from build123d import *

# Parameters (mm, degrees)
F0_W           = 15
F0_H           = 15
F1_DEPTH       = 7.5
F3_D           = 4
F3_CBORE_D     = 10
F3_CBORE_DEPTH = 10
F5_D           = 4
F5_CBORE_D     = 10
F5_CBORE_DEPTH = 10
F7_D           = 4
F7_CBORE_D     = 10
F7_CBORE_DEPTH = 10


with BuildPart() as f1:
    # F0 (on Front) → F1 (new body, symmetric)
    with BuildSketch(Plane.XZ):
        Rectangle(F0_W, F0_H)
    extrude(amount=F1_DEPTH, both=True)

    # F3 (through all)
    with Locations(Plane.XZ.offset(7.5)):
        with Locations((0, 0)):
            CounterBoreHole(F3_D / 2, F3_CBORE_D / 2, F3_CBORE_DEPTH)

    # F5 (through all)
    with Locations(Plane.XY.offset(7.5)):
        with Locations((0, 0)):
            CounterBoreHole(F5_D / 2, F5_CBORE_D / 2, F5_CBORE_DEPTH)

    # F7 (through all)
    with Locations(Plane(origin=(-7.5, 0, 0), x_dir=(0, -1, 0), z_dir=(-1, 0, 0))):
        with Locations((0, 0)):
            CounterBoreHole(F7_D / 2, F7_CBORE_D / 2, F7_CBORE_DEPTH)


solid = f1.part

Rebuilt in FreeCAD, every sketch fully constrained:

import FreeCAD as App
import Part
import Sketcher

V = App.Vector

doc = App.newDocument("Part")
body = doc.addObject("PartDesign::Body", "Body")

# Sketch on XZ plane
sketch1 = doc.addObject("Sketcher::SketchObject", "Sketch")
body.addObject(sketch1)
sketch1.AttachmentSupport = (doc.XZ_Plane, [""])
sketch1.MapMode = "FlatFace"
sketch1.addGeometry(Part.LineSegment(V(-7.5, 7.5, 0), V(-7.5, -7.5, 0)), False)
sketch1.addGeometry(Part.LineSegment(V(-7.5, -7.5, 0), V(7.5, -7.5, 0)), False)
sketch1.addGeometry(Part.LineSegment(V(7.5, -7.5, 0), V(7.5, 7.5, 0)), False)
sketch1.addGeometry(Part.LineSegment(V(7.5, 7.5, 0), V(-7.5, 7.5, 0)), False)
sketch1.addConstraint(Sketcher.Constraint("Coincident", 0, 2, 1, 1))
sketch1.addConstraint(Sketcher.Constraint("Coincident", 1, 2, 2, 1))
sketch1.addConstraint(Sketcher.Constraint("Coincident", 2, 2, 3, 1))
sketch1.addConstraint(Sketcher.Constraint("Coincident", 3, 2, 0, 1))
sketch1.addConstraint(Sketcher.Constraint("Vertical", 0))
sketch1.addConstraint(Sketcher.Constraint("Horizontal", 1))
sketch1.addConstraint(Sketcher.Constraint("Vertical", 2))
sketch1.addConstraint(Sketcher.Constraint("Horizontal", 3))
sketch1.addConstraint(Sketcher.Constraint("Symmetric", 0, 2, 2, 2, -1, 1))
sketch1.addConstraint(Sketcher.Constraint("Equal", 3, 0))
sketch1.addConstraint(Sketcher.Constraint("DistanceX", 1, 1, 1, 2, 15.0))
pad1 = doc.addObject("PartDesign::Pad", "Pad")
body.addObject(pad1)
pad1.Profile = sketch1
pad1.Length = 15
pad1.Midplane = True

# Sketch on XZ plane
sketch2 = doc.addObject("Sketcher::SketchObject", "Sketch001")
body.addObject(sketch2)
sketch2.AttachmentSupport = (doc.XZ_Plane, [""])
sketch2.MapMode = "FlatFace"
sketch2.AttachmentOffset = App.Placement(V(0, 0, 7.5), App.Rotation())
sketch2.addGeometry(Part.Circle(V(0, 0, 0), V(0, 0, 1), 2), False)
sketch2.addConstraint(Sketcher.Constraint("Coincident", 0, 3, -1, 1))
sketch2.addConstraint(Sketcher.Constraint("Diameter", 0, 4.0))
doc.recompute()
hole = doc.addObject("PartDesign::Hole", "Hole")
body.addObject(hole)
hole.Profile = sketch2
hole.ThreadType = "None"
hole.Diameter = 4
hole.DepthType = "ThroughAll"
hole.HoleCutType = "Counterbore"
hole.HoleCutDiameter = 10
hole.HoleCutDepth = 10

# Sketch on XY plane
sketch3 = doc.addObject("Sketcher::SketchObject", "Sketch002")
body.addObject(sketch3)
sketch3.AttachmentSupport = (doc.XY_Plane, [""])
sketch3.MapMode = "FlatFace"
sketch3.AttachmentOffset = App.Placement(V(0, 0, 7.5), App.Rotation())
sketch3.addGeometry(Part.Circle(V(0, 0, 0), V(0, 0, 1), 2), False)
sketch3.addConstraint(Sketcher.Constraint("Coincident", 0, 3, -1, 1))
sketch3.addConstraint(Sketcher.Constraint("Diameter", 0, 4.0))
doc.recompute()
hole2 = doc.addObject("PartDesign::Hole", "Hole001")
body.addObject(hole2)
hole2.Profile = sketch3
hole2.ThreadType = "None"
hole2.Diameter = 4
hole2.DepthType = "ThroughAll"
hole2.HoleCutType = "Counterbore"
hole2.HoleCutDiameter = 10
hole2.HoleCutDepth = 10

# Sketch on YZ plane
sketch4 = doc.addObject("Sketcher::SketchObject", "Sketch003")
body.addObject(sketch4)
sketch4.AttachmentSupport = (doc.YZ_Plane, [""])
sketch4.MapMode = "FlatFace"
sketch4.AttachmentOffset = App.Placement(V(0, 0, -7.5), App.Rotation())
sketch4.addGeometry(Part.Circle(V(0, 0, 0), V(0, 0, 1), 2), False)
sketch4.addConstraint(Sketcher.Constraint("Coincident", 0, 3, -1, 1))
sketch4.addConstraint(Sketcher.Constraint("Diameter", 0, 4.0))
doc.recompute()
hole3 = doc.addObject("PartDesign::Hole", "Hole002")
body.addObject(hole3)
hole3.Profile = sketch4
hole3.ThreadType = "None"
hole3.Diameter = 4
hole3.DepthType = "ThroughAll"
hole3.HoleCutType = "Counterbore"
hole3.HoleCutDiameter = 10
hole3.HoleCutDepth = 10
hole3.Reversed = True

doc.recompute()
